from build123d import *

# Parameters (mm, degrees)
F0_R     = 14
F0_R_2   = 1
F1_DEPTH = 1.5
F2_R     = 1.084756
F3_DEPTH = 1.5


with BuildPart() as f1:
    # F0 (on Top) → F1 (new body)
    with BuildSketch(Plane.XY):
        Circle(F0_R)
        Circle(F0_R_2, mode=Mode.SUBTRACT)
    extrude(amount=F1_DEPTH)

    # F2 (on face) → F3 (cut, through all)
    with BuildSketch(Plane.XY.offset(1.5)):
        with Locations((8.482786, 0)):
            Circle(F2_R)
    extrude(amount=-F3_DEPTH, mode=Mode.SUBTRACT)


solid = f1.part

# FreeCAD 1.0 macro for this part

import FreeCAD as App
import Part
import Sketcher
from FreeCAD import Vector
Q = App.Units.Quantity

doc = App.newDocument("Part")
body = doc.addObject("PartDesign::Body", "Body")

# Sketch on XY plane
sketch1 = body.newObject("Sketcher::SketchObject", "Sketch")
sketch1.AttachmentSupport = (doc.getObject("XY_Plane"), [""])
sketch1.MapMode = "FlatFace"
sketch1.addGeometry([
    Part.Circle(Vector(0, 0, 0), Vector(0, 0, 1), 14),
    Part.Circle(Vector(0, 0, 0), Vector(0, 0, 1), 1),
], False)
sketch1.addConstraint([
    Sketcher.Constraint("Coincident", 0, 3, -1, 1),
    Sketcher.Constraint("Coincident", 1, 3, -1, 1),
    Sketcher.Constraint("Diameter", 0, Q("28 mm")),
    Sketcher.Constraint("Diameter", 1, Q("2 mm")),
])
pad1 = body.newObject("PartDesign::Pad", "Pad")
pad1.Profile = sketch1
pad1.Length = 1.5

# Sketch on XY plane
sketch2 = body.newObject("Sketcher::SketchObject", "Sketch001")
sketch2.AttachmentSupport = (doc.getObject("XY_Plane"), [""])
sketch2.MapMode = "FlatFace"
sketch2.AttachmentOffset = App.Placement(Vector(0, 0, 1.5), App.Rotation())
sketch2.addGeometry(Part.Circle(Vector(8.482786, 0, 0), Vector(0, 0, 1), 1.084756), False)
sketch2.addConstraint([
    Sketcher.Constraint("PointOnObject", 0, 3, -1),
    Sketcher.Constraint("Diameter", 0, Q("2.169512 mm")),
    Sketcher.Constraint("DistanceX", -1, 1, 0, 3, Q("8.482786 mm")),
])
pocket1 = body.newObject("PartDesign::Pocket", "Pocket")
pocket1.Profile = sketch2
pocket1.Type = "ThroughAll"

doc.recompute()
